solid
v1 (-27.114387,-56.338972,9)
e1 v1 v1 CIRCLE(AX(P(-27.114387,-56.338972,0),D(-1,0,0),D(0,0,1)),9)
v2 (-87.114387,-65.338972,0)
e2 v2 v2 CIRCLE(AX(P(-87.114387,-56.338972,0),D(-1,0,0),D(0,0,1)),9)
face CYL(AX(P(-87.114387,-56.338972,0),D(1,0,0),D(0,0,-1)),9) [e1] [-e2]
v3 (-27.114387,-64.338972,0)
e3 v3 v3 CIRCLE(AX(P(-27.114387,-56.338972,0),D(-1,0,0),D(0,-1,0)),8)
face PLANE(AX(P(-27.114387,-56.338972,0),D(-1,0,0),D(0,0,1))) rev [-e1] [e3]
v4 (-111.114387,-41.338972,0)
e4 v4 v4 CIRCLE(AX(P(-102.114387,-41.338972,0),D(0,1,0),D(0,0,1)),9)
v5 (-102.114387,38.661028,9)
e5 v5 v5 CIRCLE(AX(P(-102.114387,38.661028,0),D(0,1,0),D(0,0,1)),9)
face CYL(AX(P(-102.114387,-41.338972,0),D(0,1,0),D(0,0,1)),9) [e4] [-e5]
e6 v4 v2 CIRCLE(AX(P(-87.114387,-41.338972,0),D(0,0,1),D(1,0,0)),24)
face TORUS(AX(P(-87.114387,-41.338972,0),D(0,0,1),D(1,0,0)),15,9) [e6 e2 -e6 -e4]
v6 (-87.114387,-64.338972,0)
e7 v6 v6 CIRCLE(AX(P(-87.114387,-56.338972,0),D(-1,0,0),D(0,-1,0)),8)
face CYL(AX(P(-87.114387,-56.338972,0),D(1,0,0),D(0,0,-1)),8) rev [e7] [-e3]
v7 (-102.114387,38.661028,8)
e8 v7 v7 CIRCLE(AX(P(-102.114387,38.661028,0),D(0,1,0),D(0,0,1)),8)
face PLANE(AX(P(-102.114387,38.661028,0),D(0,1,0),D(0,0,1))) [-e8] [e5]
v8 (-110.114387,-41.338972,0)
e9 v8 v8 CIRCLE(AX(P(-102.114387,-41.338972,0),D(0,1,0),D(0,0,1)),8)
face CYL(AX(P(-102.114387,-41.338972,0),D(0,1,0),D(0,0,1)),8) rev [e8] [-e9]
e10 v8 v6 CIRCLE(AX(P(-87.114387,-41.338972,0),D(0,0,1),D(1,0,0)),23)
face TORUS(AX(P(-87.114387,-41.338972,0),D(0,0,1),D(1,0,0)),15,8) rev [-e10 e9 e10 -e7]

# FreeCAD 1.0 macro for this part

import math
import FreeCAD as App
import Part
import Sketcher
Q = App.Units.Quantity


def faces_at(feature, points):
    """Names of the faces that lie closest to the given points."""
    faces = feature.Shape.Faces
    near = lambda p: min(range(len(faces)), key=lambda i: faces[i].distToShape(Part.Vertex(*p))[0])
    return sorted({f"Face{near(p) + 1}" for p in points})

doc = App.newDocument("Part")
body = doc.addObject("PartDesign::Body", "Body")

# Sketch on XZ plane
sketch1 = body.newObject("Sketcher::SketchObject", "Sketch")
sketch1.AttachmentSupport = (doc.getObject("XZ_Plane"), [""])
sketch1.MapMode = "FlatFace"
sketch1.AttachmentOffset = App.Placement(App.Vector(0, 0, -38.661028), App.Rotation())
sketch1.addGeometry(Part.Circle(App.Vector(-102, 0, 0), App.Vector(0, 0, 1), 9), False)
sketch1.addConstraint([
    Sketcher.Constraint("PointOnObject", 0, 3, -1),
    Sketcher.Constraint("Diameter", 0, Q("18 mm")),
    Sketcher.Constraint("DistanceX", 0, 3, -1, 1, Q("102.114387 mm")),
])

# Sketch on XY plane
sketch2 = body.newObject("Sketcher::SketchObject", "Sketch001")
sketch2.AttachmentSupport = (doc.getObject("XY_Plane"), [""])
sketch2.MapMode = "FlatFace"
sketch2.addGeometry([
    Part.LineSegment(App.Vector(-102, 39, 0), App.Vector(-102, -41, 0)),
    Part.ArcOfCircle(Part.Circle(App.Vector(-87, -41, 0), App.Vector(0, 0, 1), 15), math.radians(180), math.radians(270)),
    Part.LineSegment(App.Vector(-87, -56, 0), App.Vector(-27, -56, 0)),
], False)
sketch2.addConstraint([
    Sketcher.Constraint("Tangent", 0, 2, 1, 1),
    Sketcher.Constraint("Tangent", 1, 2, 2, 1),
    Sketcher.Constraint("Vertical", 0),
    Sketcher.Constraint("Horizontal", 2),
    Sketcher.Constraint("Radius", 1, Q("15 mm")),
    Sketcher.Constraint("DistanceX", 2, 1, 2, 2, Q("60 mm")),
    Sketcher.Constraint("DistanceY", 0, 2, 0, 1, Q("80 mm")),
    Sketcher.Constraint("DistanceY", 1, 3, -1, 1, Q("41.338972 mm")),
    Sketcher.Constraint("DistanceX", 1, 3, -1, 1, Q("87.114387 mm")),
])
doc.recompute()

additivepipe = body.newObject("PartDesign::AdditivePipe", "AdditivePipe")
additivepipe.Profile = sketch1
additivepipe.Spine = (sketch2, ["Edge1", "Edge2", "Edge3"])
doc.recompute()

thickness = body.newObject("PartDesign::Thickness", "Thickness")
thickness.Base = (additivepipe, faces_at(additivepipe, [(-27.114, -56.339, 0), (-102.114, 38.661, 0)]))
thickness.Value = 1
thickness.Reversed = True
thickness.Join = "Intersection"

doc.recompute()
